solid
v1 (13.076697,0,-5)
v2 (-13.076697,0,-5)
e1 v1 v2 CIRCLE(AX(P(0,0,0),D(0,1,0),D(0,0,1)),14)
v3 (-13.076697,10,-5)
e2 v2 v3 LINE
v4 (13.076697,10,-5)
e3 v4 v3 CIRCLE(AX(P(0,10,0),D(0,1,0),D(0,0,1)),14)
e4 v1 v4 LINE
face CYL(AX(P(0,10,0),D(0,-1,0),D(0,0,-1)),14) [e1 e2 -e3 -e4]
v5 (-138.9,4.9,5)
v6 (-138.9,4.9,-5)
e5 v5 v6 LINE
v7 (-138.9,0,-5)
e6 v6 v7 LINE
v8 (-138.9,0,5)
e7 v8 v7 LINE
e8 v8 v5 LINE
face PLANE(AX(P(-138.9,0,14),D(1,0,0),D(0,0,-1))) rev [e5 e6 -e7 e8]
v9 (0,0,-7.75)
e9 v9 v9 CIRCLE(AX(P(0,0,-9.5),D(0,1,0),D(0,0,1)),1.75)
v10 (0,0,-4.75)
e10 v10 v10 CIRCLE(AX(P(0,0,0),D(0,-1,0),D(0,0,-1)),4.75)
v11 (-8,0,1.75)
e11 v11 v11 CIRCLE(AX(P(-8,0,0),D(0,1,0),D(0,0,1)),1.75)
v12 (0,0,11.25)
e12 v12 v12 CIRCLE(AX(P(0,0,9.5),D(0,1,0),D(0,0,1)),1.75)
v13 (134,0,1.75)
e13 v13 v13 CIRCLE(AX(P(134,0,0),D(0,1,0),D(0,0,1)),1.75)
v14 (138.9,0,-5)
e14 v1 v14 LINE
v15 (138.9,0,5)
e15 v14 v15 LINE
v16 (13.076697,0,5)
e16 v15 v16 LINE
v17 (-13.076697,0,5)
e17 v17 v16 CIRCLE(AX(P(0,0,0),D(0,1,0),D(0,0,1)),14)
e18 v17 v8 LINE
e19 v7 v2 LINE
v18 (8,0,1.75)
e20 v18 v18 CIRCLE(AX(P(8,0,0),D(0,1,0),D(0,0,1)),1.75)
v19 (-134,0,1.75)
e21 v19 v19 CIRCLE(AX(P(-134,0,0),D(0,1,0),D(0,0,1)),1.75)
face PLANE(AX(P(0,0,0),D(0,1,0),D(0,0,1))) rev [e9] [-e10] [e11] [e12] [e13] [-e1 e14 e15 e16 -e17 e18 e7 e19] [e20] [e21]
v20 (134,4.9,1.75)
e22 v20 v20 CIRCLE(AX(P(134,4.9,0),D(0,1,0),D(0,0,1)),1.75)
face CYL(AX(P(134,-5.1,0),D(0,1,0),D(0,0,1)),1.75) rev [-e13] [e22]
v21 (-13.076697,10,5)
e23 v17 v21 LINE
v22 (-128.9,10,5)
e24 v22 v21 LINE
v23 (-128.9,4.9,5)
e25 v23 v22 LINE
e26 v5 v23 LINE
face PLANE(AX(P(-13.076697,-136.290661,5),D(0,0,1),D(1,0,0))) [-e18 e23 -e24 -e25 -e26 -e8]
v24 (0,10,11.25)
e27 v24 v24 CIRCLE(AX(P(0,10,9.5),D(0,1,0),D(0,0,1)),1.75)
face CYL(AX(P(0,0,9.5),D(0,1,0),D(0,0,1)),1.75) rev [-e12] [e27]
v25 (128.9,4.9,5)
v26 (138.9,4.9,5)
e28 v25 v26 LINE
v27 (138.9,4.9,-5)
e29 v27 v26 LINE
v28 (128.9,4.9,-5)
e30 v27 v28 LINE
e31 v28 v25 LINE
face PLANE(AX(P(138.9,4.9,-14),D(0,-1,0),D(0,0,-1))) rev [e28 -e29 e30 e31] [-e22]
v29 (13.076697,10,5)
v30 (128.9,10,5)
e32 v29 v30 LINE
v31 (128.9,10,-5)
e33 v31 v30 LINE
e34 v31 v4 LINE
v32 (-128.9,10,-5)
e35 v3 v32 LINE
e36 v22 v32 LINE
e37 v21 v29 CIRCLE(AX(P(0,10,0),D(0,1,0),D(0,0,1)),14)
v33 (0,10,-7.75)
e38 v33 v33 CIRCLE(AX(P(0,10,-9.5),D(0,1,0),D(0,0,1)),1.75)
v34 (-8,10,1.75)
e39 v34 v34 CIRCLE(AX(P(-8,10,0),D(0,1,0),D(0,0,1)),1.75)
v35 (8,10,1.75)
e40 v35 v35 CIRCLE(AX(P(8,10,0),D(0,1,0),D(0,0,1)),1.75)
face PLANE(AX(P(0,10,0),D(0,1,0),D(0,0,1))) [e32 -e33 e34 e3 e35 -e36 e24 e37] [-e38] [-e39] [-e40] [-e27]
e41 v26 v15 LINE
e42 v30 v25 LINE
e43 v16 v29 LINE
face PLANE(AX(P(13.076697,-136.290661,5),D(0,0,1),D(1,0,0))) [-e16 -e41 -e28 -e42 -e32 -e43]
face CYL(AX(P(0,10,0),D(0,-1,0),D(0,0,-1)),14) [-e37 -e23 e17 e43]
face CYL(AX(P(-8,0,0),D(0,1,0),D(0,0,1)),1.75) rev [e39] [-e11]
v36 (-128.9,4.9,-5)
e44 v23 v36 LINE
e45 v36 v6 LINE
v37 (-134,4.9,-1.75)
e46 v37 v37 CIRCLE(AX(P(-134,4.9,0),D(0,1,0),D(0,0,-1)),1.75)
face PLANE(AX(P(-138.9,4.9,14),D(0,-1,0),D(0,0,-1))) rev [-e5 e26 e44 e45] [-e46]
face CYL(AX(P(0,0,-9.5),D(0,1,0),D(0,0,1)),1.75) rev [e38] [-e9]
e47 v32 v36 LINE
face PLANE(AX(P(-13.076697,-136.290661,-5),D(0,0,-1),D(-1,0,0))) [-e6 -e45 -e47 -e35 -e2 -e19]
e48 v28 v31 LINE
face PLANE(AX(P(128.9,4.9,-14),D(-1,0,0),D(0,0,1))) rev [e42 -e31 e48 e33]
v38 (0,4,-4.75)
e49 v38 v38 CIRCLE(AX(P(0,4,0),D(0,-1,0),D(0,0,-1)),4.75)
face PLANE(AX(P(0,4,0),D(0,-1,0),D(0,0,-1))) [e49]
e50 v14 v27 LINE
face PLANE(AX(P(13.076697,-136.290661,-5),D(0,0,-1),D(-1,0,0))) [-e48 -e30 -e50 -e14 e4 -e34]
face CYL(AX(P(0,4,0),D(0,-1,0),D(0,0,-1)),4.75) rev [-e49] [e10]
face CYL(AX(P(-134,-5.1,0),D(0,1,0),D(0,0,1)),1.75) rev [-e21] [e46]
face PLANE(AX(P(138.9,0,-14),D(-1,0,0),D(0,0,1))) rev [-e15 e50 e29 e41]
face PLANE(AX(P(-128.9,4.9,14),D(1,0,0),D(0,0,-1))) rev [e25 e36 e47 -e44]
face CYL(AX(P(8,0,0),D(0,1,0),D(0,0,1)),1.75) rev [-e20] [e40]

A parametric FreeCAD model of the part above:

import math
import FreeCAD as App
import Part
import Sketcher

doc = App.newDocument("Part")
body = doc.addObject("PartDesign::Body", "Body")

# Sketch on XZ plane
sketch1 = body.newObject("Sketcher::SketchObject", "Sketch")
sketch1.AttachmentSupport = (doc.getObject("XZ_Plane"), [""])
sketch1.MapMode = "FlatFace"
sketch1.addGeometry(Part.Circle(App.Vector(0, 0, 0), App.Vector(0, 0, 1), 14), False)
sketch1.addConstraint(Sketcher.Constraint("Coincident", 0, 3, -1, 1))
sketch1.addConstraint(Sketcher.Constraint("Diameter", 0, 28.0))
pad1 = body.newObject("PartDesign::Pad", "Pad")
pad1.Profile = sketch1
pad1.Length = 10
pad1.Reversed = True

# Sketch on XZ plane
sketch2 = body.newObject("Sketcher::SketchObject", "Sketch001")
sketch2.AttachmentSupport = (doc.getObject("XZ_Plane"), [""])
sketch2.MapMode = "FlatFace"
sketch2.AttachmentOffset = App.Placement(App.Vector(0, 0, -10), App.Rotation())
sketch2.addGeometry(Part.LineSegment(App.Vector(13.076697, 5, 0), App.Vector(149, 5, 0)), False)
sketch2.addGeometry(Part.LineSegment(App.Vector(149, 5, 0), App.Vector(149, -5, 0)), False)
sketch2.addGeometry(Part.LineSegment(App.Vector(149, -5, 0), App.Vector(13.076697, -5, 0)), False)
sketch2.addGeometry(Part.ArcOfCircle(Part.Circle(App.Vector(0, 0, 0), App.Vector(0, 0, 1), 14), math.radians(-20.924832), math.radians(20.924832)), False)
sketch2.addConstraint(Sketcher.Constraint("Coincident", 0, 2, 1, 1))
sketch2.addConstraint(Sketcher.Constraint("Coincident", 1, 2, 2, 1))
sketch2.addConstraint(Sketcher.Constraint("Coincident", 2, 2, 3, 1))
sketch2.addConstraint(Sketcher.Constraint("Coincident", 3, 2, 0, 1))
sketch2.addConstraint(Sketcher.Constraint("Horizontal", 0))
sketch2.addConstraint(Sketcher.Constraint("Vertical", 1))
sketch2.addConstraint(Sketcher.Constraint("Horizontal", 2))
sketch2.addConstraint(Sketcher.Constraint("Coincident", 3, 3, -1, 1))
sketch2.addConstraint(Sketcher.Constraint("Vertical", 2, 2, 3, 2))
sketch2.addConstraint(Sketcher.Constraint("Radius", 3, 14.0))
sketch2.addConstraint(Sketcher.Constraint("DistanceY", 1, 2, 1, 1, 10.0))
sketch2.addConstraint(Sketcher.Constraint("DistanceX", -1, 1, 0, 2, 149.0))
pad2 = body.newObject("PartDesign::Pad", "Pad001")
pad2.Profile = sketch2
pad2.Length = 10

# Sketch on XY plane
sketch3 = body.newObject("Sketcher::SketchObject", "Sketch002")
sketch3.AttachmentSupport = (doc.getObject("XY_Plane"), [""])
sketch3.MapMode = "FlatFace"
sketch3.AttachmentOffset = App.Placement(App.Vector(0, 0, 5), App.Rotation())
sketch3.addGeometry(Part.LineSegment(App.Vector(138.9, 4.9, 0), App.Vector(138.9, 0, 0)), False)
sketch3.addGeometry(Part.LineSegment(App.Vector(138.9, 0, 0), App.Vector(149, 0, 0)), False)
sketch3.addGeometry(Part.LineSegment(App.Vector(149, 0, 0), App.Vector(149, 10, 0)), False)
sketch3.addGeometry(Part.LineSegment(App.Vector(149, 10, 0), App.Vector(128.9, 10, 0)), False)
sketch3.addGeometry(Part.LineSegment(App.Vector(128.9, 10, 0), App.Vector(128.9, 4.9, 0)), False)
sketch3.addGeometry(Part.LineSegment(App.Vector(128.9, 4.9, 0), App.Vector(138.9, 4.9, 0)), False)
sketch3.addConstraint(Sketcher.Constraint("Coincident", 0, 2, 1, 1))
sketch3.addConstraint(Sketcher.Constraint("Coincident", 1, 2, 2, 1))
sketch3.addConstraint(Sketcher.Constraint("Coincident", 2, 2, 3, 1))
sketch3.addConstraint(Sketcher.Constraint("Coincident", 3, 2, 4, 1))
sketch3.addConstraint(Sketcher.Constraint("Coincident", 4, 2, 5, 1))
sketch3.addConstraint(Sketcher.Constraint("Coincident", 5, 2, 0, 1))
sketch3.addConstraint(Sketcher.Constraint("Vertical", 0))
sketch3.addConstraint(Sketcher.Constraint("Horizontal", 1))
sketch3.addConstraint(Sketcher.Constraint("Vertical", 2))
sketch3.addConstraint(Sketcher.Constraint("Horizontal", 3))
sketch3.addConstraint(Sketcher.Constraint("Vertical", 4))
sketch3.addConstraint(Sketcher.Constraint("Horizontal", 5))
sketch3.addConstraint(Sketcher.Constraint("PointOnObject", 0, 2, -1))
sketch3.addConstraint(Sketcher.Constraint("Equal", 5, 2))
sketch3.addConstraint(Sketcher.Constraint("DistanceX", 5, 1, 5, 2, 10.0))
sketch3.addConstraint(Sketcher.Constraint("DistanceX", 1, 1, 1, 2, 10.1))
sketch3.addConstraint(Sketcher.Constraint("DistanceY", 0, 2, 0, 1, 4.9))
sketch3.addConstraint(Sketcher.Constraint("DistanceX", -1, 1, 1, 2, 149.0))
pocket1 = body.newObject("PartDesign::Pocket", "Pocket")
pocket1.Profile = sketch3
pocket1.Type = "ThroughAll"

# Sketch on XZ plane
sketch4 = body.newObject("Sketcher::SketchObject", "Sketch003")
sketch4.AttachmentSupport = (doc.getObject("XZ_Plane"), [""])
sketch4.MapMode = "FlatFace"
sketch4.AttachmentOffset = App.Placement(App.Vector(0, 0, -4.9), App.Rotation())
sketch4.addGeometry(Part.Circle(App.Vector(134, 0, 0), App.Vector(0, 0, 1), 1.75), False)
sketch4.addConstraint(Sketcher.Constraint("PointOnObject", 0, 3, -1))
sketch4.addConstraint(Sketcher.Constraint("Diameter", 0, 3.5))
sketch4.addConstraint(Sketcher.Constraint("DistanceX", -1, 1, 0, 3, 134.0))
pocket2 = body.newObject("PartDesign::Pocket", "Pocket001")
pocket2.Profile = sketch4
pocket2.Length = 10
pocket2.Reversed = True
doc.recompute()

polarpattern = body.newObject("PartDesign::PolarPattern", "PolarPattern")
polarpattern.Originals = [pad2, pocket1, pocket2]
polarpattern.Axis = (doc.getObject("Y_Axis"), [""])
polarpattern.Angle = 360
polarpattern.Occurrences = 2
body.Tip = polarpattern

# Sketch on XZ plane
sketch5 = body.newObject("Sketcher::SketchObject", "Sketch004")
sketch5.AttachmentSupport = (doc.getObject("XZ_Plane"), [""])
sketch5.MapMode = "FlatFace"
sketch5.AttachmentOffset = App.Placement(App.Vector(0, 0, -10), App.Rotation())
sketch5.addGeometry(Part.Circle(App.Vector(0, -9.5, 0), App.Vector(0, 0, 1), 1.75), False)
sketch5.addGeometry(Part.Circle(App.Vector(8, 0, 0), App.Vector(0, 0, 1), 1.75), False)
sketch5.addGeometry(Part.Circle(App.Vector(-8, 0, 0), App.Vector(0, 0, 1), 1.75), False)
sketch5.addGeometry(Part.Circle(App.Vector(0, 9.5, 0), App.Vector(0, 0, 1), 1.75), False)
sketch5.addConstraint(Sketcher.Constraint("Equal", 0, 1))
sketch5.addConstraint(Sketcher.Constraint("Equal", 1, 2))
sketch5.addConstraint(Sketcher.Constraint("Equal", 2, 3))
sketch5.addConstraint(Sketcher.Constraint("Symmetric", 1, 3, 2, 3, -1, 1))
sketch5.addConstraint(Sketcher.Constraint("Symmetric", 0, 3, 3, 3, -1, 1))
sketch5.addConstraint(Sketcher.Constraint("PointOnObject", 0, 3, -2))
sketch5.addConstraint(Sketcher.Constraint("PointOnObject", 1, 3, -1))
sketch5.addConstraint(Sketcher.Constraint("Diameter", 0, 3.5))
sketch5.addConstraint(Sketcher.Constraint("DistanceX", -1, 1, 1, 3, 8.0))
sketch5.addConstraint(Sketcher.Constraint("DistanceY", 0, 3, 3, 3, 19.0))
pocket3 = body.newObject("PartDesign::Pocket", "Pocket002")
pocket3.Profile = sketch5
pocket3.Type = "ThroughAll"
pocket3.Reversed = True

# Sketch on XZ plane
sketch6 = body.newObject("Sketcher::SketchObject", "Sketch005")
sketch6.AttachmentSupport = (doc.getObject("XZ_Plane"), [""])
sketch6.MapMode = "FlatFace"
sketch6.addGeometry(Part.Circle(App.Vector(0, 0, 0), App.Vector(0, 0, 1), 4.75), False)
sketch6.addConstraint(Sketcher.Constraint("Coincident", 0, 3, -1, 1))
sketch6.addConstraint(Sketcher.Constraint("Diameter", 0, 9.5))
pocket4 = body.newObject("PartDesign::Pocket", "Pocket003")
pocket4.Profile = sketch6
pocket4.Length = 4

doc.recompute()
